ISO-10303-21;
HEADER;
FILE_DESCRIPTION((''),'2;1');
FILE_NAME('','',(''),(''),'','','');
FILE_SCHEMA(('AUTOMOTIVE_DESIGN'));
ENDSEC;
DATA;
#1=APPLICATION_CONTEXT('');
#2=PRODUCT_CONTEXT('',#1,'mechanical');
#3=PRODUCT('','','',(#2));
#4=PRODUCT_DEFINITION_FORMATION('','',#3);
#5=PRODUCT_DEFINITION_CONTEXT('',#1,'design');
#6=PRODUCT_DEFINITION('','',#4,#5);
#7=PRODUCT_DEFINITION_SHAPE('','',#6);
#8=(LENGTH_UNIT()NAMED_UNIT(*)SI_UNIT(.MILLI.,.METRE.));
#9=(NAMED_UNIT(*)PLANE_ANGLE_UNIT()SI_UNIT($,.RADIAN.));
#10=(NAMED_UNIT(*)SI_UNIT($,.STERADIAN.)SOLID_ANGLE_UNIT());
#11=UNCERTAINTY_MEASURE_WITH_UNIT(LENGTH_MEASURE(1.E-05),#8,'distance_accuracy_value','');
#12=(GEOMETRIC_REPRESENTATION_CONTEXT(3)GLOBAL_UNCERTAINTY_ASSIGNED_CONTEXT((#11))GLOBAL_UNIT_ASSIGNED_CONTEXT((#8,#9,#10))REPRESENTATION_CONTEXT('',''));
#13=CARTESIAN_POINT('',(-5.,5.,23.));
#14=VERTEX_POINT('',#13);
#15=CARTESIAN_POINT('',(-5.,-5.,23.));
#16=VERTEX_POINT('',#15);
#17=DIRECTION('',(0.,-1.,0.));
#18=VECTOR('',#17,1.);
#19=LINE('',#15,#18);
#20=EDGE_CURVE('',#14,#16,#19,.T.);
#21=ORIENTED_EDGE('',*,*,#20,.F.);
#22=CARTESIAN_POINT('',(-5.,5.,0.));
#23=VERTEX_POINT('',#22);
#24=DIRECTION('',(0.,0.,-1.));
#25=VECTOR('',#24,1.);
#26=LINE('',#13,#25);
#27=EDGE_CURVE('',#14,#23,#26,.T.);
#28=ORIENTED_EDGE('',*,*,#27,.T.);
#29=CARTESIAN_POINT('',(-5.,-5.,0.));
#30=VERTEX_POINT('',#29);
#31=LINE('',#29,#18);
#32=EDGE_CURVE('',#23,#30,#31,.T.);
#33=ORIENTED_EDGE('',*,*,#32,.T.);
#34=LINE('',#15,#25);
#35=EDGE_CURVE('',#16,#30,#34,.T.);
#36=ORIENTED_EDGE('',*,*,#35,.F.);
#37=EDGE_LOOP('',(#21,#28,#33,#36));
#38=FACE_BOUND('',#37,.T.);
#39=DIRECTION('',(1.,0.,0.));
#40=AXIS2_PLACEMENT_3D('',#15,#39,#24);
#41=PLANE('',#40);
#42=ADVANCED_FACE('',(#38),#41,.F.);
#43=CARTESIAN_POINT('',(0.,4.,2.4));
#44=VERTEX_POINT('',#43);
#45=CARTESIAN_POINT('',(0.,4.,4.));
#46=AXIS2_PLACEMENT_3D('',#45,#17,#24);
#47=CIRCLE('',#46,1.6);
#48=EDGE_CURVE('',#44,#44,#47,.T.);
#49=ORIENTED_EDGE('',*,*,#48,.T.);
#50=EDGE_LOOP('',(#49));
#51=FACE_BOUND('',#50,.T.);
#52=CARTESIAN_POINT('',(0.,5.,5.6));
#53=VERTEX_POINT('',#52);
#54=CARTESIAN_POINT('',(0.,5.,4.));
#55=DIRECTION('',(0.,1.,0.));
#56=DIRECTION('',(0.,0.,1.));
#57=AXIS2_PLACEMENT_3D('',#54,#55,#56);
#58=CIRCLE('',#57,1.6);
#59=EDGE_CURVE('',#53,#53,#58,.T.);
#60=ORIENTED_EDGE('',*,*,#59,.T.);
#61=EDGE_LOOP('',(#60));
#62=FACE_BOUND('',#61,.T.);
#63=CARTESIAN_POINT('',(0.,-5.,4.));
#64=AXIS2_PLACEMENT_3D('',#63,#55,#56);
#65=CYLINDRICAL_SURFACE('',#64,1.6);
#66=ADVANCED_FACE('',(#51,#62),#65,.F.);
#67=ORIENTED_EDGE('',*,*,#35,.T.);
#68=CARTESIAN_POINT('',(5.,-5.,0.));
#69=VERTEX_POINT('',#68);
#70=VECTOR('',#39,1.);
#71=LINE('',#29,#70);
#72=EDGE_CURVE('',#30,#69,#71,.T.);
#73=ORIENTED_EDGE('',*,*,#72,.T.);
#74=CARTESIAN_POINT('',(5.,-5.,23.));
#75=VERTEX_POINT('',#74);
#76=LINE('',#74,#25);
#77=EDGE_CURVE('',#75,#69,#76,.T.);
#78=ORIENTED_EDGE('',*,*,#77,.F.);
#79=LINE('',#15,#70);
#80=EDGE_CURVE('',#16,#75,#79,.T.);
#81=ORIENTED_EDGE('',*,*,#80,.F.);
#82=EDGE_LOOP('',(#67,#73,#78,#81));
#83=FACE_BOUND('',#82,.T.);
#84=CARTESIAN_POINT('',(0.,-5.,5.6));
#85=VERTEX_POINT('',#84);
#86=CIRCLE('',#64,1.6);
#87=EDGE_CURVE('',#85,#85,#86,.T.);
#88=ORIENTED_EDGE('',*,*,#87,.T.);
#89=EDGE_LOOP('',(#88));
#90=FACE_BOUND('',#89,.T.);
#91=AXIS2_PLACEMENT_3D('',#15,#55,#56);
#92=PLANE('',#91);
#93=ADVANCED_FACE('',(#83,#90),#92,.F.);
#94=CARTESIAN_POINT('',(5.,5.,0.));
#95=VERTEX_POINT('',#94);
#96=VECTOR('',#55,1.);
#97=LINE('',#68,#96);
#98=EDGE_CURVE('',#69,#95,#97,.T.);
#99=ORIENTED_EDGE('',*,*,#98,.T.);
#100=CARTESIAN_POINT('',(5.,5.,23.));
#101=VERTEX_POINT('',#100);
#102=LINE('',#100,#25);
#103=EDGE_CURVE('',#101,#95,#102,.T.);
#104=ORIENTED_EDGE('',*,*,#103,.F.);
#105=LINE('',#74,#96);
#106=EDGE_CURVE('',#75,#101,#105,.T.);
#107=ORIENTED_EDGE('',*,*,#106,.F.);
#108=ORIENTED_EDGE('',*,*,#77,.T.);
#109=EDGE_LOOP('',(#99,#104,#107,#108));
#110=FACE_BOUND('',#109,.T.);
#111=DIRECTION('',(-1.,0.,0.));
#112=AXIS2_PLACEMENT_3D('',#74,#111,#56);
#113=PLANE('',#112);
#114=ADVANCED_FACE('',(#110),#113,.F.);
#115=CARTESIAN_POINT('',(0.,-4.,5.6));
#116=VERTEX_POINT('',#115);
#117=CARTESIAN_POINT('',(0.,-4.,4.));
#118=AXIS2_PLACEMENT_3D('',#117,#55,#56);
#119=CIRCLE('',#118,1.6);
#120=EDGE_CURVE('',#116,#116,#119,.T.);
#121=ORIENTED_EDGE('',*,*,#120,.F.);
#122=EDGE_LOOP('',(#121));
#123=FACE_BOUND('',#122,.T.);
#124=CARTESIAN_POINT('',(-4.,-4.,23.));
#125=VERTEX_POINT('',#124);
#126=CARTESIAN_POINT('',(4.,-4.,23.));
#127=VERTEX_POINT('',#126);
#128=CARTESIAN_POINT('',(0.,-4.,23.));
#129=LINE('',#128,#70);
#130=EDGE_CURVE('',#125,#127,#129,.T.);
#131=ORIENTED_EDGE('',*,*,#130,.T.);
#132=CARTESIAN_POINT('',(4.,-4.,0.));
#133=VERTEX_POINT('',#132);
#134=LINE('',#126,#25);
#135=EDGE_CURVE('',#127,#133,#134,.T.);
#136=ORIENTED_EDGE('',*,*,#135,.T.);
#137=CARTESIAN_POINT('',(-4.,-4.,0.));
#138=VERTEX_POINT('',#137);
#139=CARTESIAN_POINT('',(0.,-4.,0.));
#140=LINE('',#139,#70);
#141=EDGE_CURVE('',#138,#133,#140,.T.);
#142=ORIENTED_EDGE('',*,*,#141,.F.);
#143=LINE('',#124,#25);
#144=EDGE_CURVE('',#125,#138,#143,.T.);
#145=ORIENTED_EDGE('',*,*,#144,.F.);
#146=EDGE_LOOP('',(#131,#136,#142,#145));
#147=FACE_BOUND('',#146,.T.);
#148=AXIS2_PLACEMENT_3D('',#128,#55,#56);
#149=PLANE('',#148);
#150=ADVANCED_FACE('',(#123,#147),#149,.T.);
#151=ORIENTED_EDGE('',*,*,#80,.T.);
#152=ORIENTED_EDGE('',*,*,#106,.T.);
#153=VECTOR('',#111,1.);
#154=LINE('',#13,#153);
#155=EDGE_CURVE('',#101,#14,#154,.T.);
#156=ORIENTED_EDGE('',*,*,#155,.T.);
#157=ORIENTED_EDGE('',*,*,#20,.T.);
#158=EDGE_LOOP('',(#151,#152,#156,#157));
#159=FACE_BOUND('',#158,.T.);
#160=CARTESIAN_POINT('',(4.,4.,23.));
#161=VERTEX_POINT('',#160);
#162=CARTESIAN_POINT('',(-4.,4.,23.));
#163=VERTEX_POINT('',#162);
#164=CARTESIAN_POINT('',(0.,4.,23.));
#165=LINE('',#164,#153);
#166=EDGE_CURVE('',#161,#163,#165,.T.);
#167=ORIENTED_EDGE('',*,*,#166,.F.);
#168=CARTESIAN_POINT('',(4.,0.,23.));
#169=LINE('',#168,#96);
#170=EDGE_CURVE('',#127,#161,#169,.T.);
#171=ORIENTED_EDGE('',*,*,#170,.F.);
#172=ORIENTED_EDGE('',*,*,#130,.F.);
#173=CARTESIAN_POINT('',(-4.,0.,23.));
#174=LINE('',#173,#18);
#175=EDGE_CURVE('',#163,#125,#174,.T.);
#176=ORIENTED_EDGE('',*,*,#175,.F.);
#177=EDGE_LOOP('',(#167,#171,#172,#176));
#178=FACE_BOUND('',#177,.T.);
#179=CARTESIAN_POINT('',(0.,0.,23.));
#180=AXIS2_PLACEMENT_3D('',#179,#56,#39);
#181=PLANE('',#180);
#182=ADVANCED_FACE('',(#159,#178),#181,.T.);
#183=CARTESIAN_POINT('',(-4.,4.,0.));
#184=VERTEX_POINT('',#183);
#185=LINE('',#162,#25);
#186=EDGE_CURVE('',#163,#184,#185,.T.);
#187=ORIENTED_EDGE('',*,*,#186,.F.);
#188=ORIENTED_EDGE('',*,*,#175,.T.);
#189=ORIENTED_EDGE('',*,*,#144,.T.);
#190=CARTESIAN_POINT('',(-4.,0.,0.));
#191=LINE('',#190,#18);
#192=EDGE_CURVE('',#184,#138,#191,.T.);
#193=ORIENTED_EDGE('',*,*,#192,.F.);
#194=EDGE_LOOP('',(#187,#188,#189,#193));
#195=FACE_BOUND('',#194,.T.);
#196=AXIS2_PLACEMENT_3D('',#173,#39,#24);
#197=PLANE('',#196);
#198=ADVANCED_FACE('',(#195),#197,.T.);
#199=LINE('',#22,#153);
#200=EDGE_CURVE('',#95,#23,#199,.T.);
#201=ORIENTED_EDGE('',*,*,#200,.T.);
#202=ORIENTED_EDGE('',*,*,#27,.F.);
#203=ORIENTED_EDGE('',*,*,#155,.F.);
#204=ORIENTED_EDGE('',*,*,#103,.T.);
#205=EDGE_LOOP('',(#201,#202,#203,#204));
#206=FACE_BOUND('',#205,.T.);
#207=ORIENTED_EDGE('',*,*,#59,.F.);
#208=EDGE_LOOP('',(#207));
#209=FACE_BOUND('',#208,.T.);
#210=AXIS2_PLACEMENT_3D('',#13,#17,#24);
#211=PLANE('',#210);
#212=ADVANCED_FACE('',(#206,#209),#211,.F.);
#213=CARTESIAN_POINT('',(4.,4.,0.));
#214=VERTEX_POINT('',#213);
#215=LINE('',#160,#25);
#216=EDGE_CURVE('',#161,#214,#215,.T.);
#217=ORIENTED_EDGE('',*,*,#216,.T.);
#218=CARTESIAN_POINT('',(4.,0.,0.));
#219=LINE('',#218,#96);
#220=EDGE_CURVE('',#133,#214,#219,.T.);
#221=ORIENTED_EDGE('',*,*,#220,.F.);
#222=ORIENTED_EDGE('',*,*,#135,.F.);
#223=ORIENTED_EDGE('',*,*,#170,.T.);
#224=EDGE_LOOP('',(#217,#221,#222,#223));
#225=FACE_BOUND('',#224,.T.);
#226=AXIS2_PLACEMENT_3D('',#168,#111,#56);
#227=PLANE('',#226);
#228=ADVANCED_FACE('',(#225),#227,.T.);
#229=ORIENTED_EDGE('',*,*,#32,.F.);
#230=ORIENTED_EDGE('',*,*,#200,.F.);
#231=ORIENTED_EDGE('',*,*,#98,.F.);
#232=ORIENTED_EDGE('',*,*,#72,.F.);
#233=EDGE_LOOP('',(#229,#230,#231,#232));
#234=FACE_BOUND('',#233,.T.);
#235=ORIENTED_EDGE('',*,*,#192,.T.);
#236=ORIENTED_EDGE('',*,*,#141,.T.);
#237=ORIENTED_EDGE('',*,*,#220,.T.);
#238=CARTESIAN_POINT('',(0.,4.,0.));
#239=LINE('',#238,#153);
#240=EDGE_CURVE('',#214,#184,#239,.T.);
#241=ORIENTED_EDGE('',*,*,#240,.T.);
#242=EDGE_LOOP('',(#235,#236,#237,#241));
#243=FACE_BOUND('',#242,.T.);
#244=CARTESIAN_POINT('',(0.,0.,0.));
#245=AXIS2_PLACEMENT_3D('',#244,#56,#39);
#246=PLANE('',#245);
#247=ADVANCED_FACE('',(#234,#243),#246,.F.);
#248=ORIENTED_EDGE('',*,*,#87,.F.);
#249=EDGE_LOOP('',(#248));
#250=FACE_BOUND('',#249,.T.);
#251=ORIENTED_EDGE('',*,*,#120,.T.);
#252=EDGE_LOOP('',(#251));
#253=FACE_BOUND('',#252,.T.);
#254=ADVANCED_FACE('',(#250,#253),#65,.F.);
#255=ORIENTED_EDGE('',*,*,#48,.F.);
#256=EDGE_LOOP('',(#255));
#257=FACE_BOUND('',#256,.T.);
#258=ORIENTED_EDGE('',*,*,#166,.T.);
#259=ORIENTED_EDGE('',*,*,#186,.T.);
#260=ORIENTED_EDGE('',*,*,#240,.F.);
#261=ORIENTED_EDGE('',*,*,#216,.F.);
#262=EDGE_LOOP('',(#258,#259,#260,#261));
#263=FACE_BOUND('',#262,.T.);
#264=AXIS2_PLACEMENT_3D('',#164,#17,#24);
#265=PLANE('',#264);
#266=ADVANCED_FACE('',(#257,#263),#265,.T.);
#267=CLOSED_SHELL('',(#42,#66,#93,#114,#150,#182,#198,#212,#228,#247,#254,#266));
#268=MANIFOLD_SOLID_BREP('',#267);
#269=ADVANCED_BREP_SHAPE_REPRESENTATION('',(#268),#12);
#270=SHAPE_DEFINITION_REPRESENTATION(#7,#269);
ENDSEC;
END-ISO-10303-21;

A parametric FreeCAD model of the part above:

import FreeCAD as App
import Part
import Sketcher
Q = App.Units.Quantity

doc = App.newDocument("Part")
body = doc.addObject("PartDesign::Body", "Body")

# Sketch on XY plane
sketch1 = body.newObject("Sketcher::SketchObject", "Sketch")
sketch1.AttachmentSupport = (doc.getObject("XY_Plane"), [""])
sketch1.MapMode = "FlatFace"
sketch1.addGeometry([
    Part.LineSegment(App.Vector(-5, 5, 0), App.Vector(-5, -5, 0)),  # 0
    Part.LineSegment(App.Vector(-5, -5, 0), App.Vector(5, -5, 0)),  # 1
    Part.LineSegment(App.Vector(5, -5, 0), App.Vector(5, 5, 0)),  # 2
    Part.LineSegment(App.Vector(5, 5, 0), App.Vector(-5, 5, 0)),  # 3
    Part.LineSegment(App.Vector(4, -4, 0), App.Vector(-4, -4, 0)),  # 4
    Part.LineSegment(App.Vector(-4, -4, 0), App.Vector(-4, 4, 0)),  # 5
    Part.LineSegment(App.Vector(-4, 4, 0), App.Vector(4, 4, 0)),  # 6
    Part.LineSegment(App.Vector(4, 4, 0), App.Vector(4, -4, 0)),  # 7
], False)
sketch1.addConstraint([
    Sketcher.Constraint("Coincident", 0, 2, 1, 1),
    Sketcher.Constraint("Coincident", 1, 2, 2, 1),
    Sketcher.Constraint("Coincident", 2, 2, 3, 1),
    Sketcher.Constraint("Coincident", 3, 2, 0, 1),
    Sketcher.Constraint("Coincident", 4, 2, 5, 1),
    Sketcher.Constraint("Coincident", 5, 2, 6, 1),
    Sketcher.Constraint("Coincident", 6, 2, 7, 1),
    Sketcher.Constraint("Coincident", 7, 2, 4, 1),
    Sketcher.Constraint("Vertical", 0),
    Sketcher.Constraint("Horizontal", 1),
    Sketcher.Constraint("Vertical", 2),
    Sketcher.Constraint("Horizontal", 3),
    Sketcher.Constraint("Horizontal", 4),
    Sketcher.Constraint("Vertical", 5),
    Sketcher.Constraint("Horizontal", 6),
    Sketcher.Constraint("Vertical", 7),
    Sketcher.Constraint("Symmetric", 0, 2, 2, 2, -1, 1),
    Sketcher.Constraint("Symmetric", 4, 2, 6, 2, -1, 1),
    Sketcher.Constraint("Equal", 3, 0),
    Sketcher.Constraint("Equal", 6, 5),
    Sketcher.Constraint("DistanceX", 1, 1, 1, 2, Q("10 mm")),
    Sketcher.Constraint("DistanceX", 4, 2, 4, 1, Q("8 mm")),
])
pad1 = body.newObject("PartDesign::Pad", "Pad")
pad1.Profile = sketch1
pad1.Length = 23

# Sketch on XZ plane
sketch2 = body.newObject("Sketcher::SketchObject", "Sketch001")
sketch2.AttachmentSupport = (doc.getObject("XZ_Plane"), [""])
sketch2.MapMode = "FlatFace"
sketch2.AttachmentOffset = App.Placement(App.Vector(0, 0, -5), App.Rotation())
sketch2.addGeometry(Part.Circle(App.Vector(0, 4, 0), App.Vector(0, 0, 1), 1.6), False)
sketch2.addConstraint([
    Sketcher.Constraint("PointOnObject", 0, 3, -2),
    Sketcher.Constraint("Diameter", 0, Q("3.2 mm")),
    Sketcher.Constraint("DistanceY", -1, 1, 0, 3, Q("4 mm")),
])
pocket1 = body.newObject("PartDesign::Pocket", "Pocket")
pocket1.Profile = sketch2
pocket1.Type = "ThroughAll"
pocket1.Reversed = True

doc.recompute()
